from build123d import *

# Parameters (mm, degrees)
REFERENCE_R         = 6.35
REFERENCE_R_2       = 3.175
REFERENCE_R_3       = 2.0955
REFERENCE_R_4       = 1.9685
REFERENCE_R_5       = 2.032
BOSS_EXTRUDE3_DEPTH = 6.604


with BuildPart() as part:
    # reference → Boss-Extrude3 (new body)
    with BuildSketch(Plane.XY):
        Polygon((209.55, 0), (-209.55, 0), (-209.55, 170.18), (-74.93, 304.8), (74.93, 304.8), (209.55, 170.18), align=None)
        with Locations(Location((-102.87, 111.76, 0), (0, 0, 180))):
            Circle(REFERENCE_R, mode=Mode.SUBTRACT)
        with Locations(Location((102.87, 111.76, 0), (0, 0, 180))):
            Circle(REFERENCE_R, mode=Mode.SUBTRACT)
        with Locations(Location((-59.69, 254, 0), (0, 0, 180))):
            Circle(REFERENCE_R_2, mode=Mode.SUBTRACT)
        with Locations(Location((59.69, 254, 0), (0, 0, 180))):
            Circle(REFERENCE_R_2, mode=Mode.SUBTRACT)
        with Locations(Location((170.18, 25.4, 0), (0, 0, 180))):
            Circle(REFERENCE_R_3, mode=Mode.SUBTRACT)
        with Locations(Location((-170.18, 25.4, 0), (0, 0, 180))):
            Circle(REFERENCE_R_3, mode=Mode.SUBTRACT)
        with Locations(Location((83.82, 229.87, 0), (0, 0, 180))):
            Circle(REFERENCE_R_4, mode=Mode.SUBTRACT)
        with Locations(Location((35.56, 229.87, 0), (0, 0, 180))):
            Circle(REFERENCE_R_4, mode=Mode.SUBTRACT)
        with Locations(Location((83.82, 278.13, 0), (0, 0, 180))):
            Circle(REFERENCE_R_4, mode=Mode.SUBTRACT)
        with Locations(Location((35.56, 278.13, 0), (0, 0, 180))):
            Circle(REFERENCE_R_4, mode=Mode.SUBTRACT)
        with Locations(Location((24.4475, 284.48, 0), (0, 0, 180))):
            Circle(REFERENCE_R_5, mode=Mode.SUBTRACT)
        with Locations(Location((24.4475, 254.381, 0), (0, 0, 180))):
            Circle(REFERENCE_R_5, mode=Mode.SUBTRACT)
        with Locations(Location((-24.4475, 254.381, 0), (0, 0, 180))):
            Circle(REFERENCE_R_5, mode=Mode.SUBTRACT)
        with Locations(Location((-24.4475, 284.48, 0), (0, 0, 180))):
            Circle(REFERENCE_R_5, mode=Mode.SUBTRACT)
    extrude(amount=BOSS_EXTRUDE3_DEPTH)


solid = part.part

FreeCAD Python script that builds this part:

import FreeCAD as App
import Part
import Sketcher
from FreeCAD import Vector
Q = App.Units.Quantity

doc = App.newDocument("Part")
params = doc.addObject("Spreadsheet::Sheet", "Params")
for row, (alias, value) in enumerate([
    ("sketch1_diameter", "0.5 in"),
    ("sketch1_diameter2", "0.25 in"),
    ("sketch1_diameter3", "0.16 in"),
    ("sketch1_diameter4", "0.165 in"),
    ("sketch1_diameter5", "0.155 in"),
    ("pad1_length", "0.26 in"),
], start=1):
    params.set(f"A{row}", alias)
    params.set(f"B{row}", "=" + value)
    params.setAlias(f"B{row}", alias)

body = doc.addObject("PartDesign::Body", "Body")

sketch1 = body.newObject("Sketcher::SketchObject", "Sketch")
sketch1.AttachmentSupport = (doc.getObject("XY_Plane"), [""])
sketch1.MapMode = "FlatFace"
sketch1.addGeometry([
    Part.LineSegment(Vector(-209.6, 0, 0), Vector(209.6, 0, 0)),
    Part.LineSegment(Vector(209.6, 0, 0), Vector(209.6, 170.2, 0)),
    Part.LineSegment(Vector(209.6, 170.2, 0), Vector(74.9, 304.8, 0)),
    Part.LineSegment(Vector(74.9, 304.8, 0), Vector(-74.9, 304.8, 0)),
    Part.LineSegment(Vector(-74.9, 304.8, 0), Vector(-209.6, 170.2, 0)),
    Part.LineSegment(Vector(-209.6, 170.2, 0), Vector(-209.6, 0, 0)),
    Part.Circle(Vector(170.2, 25.4, 0), Vector(0, 0, 1), 2.1),
    Part.Circle(Vector(102.9, 111.8, 0), Vector(0, 0, 1), 6.3),
    Part.Circle(Vector(-170.2, 25.4, 0), Vector(0, 0, 1), 2.1),
    Part.Circle(Vector(-102.9, 111.8, 0), Vector(0, 0, 1), 6.3),
    Part.Circle(Vector(83.8, 229.9, 0), Vector(0, 0, 1), 2),
    Part.Circle(Vector(35.6, 229.9, 0), Vector(0, 0, 1), 2),
    Part.Circle(Vector(59.7, 254, 0), Vector(0, 0, 1), 3.2),
    Part.Circle(Vector(83.8, 278.1, 0), Vector(0, 0, 1), 2),
    Part.Circle(Vector(24.4, 254.4, 0), Vector(0, 0, 1), 2),
    Part.Circle(Vector(35.6, 278.1, 0), Vector(0, 0, 1), 2),
    Part.Circle(Vector(24.4, 284.5, 0), Vector(0, 0, 1), 2),
    Part.Circle(Vector(-24.4, 254.4, 0), Vector(0, 0, 1), 2),
    Part.Circle(Vector(-24.4, 284.5, 0), Vector(0, 0, 1), 2),
    Part.Circle(Vector(-59.7, 254, 0), Vector(0, 0, 1), 3.2),
], False)
sketch1.addConstraint([
    Sketcher.Constraint("Coincident", 0, 2, 1, 1),
    Sketcher.Constraint("Coincident", 1, 2, 2, 1),
    Sketcher.Constraint("Coincident", 2, 2, 3, 1),
    Sketcher.Constraint("Coincident", 3, 2, 4, 1),
    Sketcher.Constraint("Coincident", 4, 2, 5, 1),
    Sketcher.Constraint("Coincident", 5, 2, 0, 1),
    Sketcher.Constraint("Horizontal", 0),
    Sketcher.Constraint("Vertical", 1),
    Sketcher.Constraint("Horizontal", 3),
    Sketcher.Constraint("Vertical", 5),
    Sketcher.Constraint("Equal", 6, 8),
    Sketcher.Constraint("Equal", 7, 9),
    Sketcher.Constraint("Equal", 10, 11),
    Sketcher.Constraint("Equal", 11, 13),
    Sketcher.Constraint("Equal", 13, 15),
    Sketcher.Constraint("Equal", 14, 16),
    Sketcher.Constraint("Equal", 16, 17),
    Sketcher.Constraint("Equal", 17, 18),
    Sketcher.Constraint("Equal", 12, 19),
    Sketcher.Constraint("Symmetric", 0, 2, 5, 2, -1, 1),
    Sketcher.Constraint("Symmetric", 6, 3, 8, 3, -2),
    Sketcher.Constraint("Symmetric", 7, 3, 9, 3, -2),
    Sketcher.Constraint("Symmetric", 14, 3, 17, 3, -2),
    Sketcher.Constraint("Symmetric", 16, 3, 18, 3, -2),
    Sketcher.Constraint("Symmetric", 12, 3, 19, 3, -2),
    Sketcher.Constraint("Perpendicular", 2, 4),
    Sketcher.Constraint("Horizontal", 10, 3, 11, 3),
    Sketcher.Constraint("Horizontal", 13, 3, 15, 3),
    Sketcher.Constraint("Horizontal", 1, 2, 4, 2),
    Sketcher.Constraint("Vertical", 10, 3, 13, 3),
    Sketcher.Constraint("Vertical", 11, 3, 15, 3),
    Sketcher.Constraint("Vertical", 14, 3, 16, 3),
    Sketcher.Constraint("Equal", 2, 4),
    Sketcher.Constraint("Diameter", 7, Q("0.5 in")),
    Sketcher.Constraint("Diameter", 12, Q("0.25 in")),
    Sketcher.Constraint("Diameter", 14, Q("0.16 in")),
    Sketcher.Constraint("Diameter", 6, Q("0.165 in")),
    Sketcher.Constraint("Diameter", 10, Q("0.155 in")),
    Sketcher.Constraint("DistanceX", 0, 1, 0, 2, Q("16.5 in")),
    Sketcher.Constraint("DistanceX", 3, 2, 3, 1, Q("5.9 in")),
    Sketcher.Constraint("DistanceY", 1, 1, 1, 2, Q("6.7 in")),
    Sketcher.Constraint("DistanceY", -1, 1, 6, 3, Q("1 in")),
    Sketcher.Constraint("DistanceY", -1, 1, 12, 3, Q("10 in")),
    Sketcher.Constraint("DistanceX", 8, 3, 10, 3, Q("10 in")),
    Sketcher.Constraint("DistanceX", -1, 1, 6, 3, Q("6.7 in")),
    Sketcher.Constraint("DistanceY", -1, 1, 7, 3, Q("4.4 in")),
    Sketcher.Constraint("DistanceX", -1, 1, 11, 3, Q("1.4 in")),
    Sketcher.Constraint("DistanceY", -1, 1, 16, 3, Q("11.2 in")),
    Sketcher.Constraint("DistanceX", 9, 3, 7, 3, Q("8.1 in")),
    Sketcher.Constraint("DistanceX", 12, 3, 7, 3, Q("1.7 in")),
    Sketcher.Constraint("DistanceY", 10, 3, 13, 3, Q("1.9 in")),
    Sketcher.Constraint("DistanceY", -1, 1, 10, 3, Q("9.05 in")),
    Sketcher.Constraint("DistanceY", -1, 1, 14, 3, Q("10.015 in")),
    Sketcher.Constraint("DistanceX", 14, 3, 11, 3, Q("0.4375 in")),
])
sketch1.setExpression("Constraints[33]", "Params.sketch1_diameter")
sketch1.setExpression("Constraints[34]", "Params.sketch1_diameter2")
sketch1.setExpression("Constraints[35]", "Params.sketch1_diameter3")
sketch1.setExpression("Constraints[36]", "Params.sketch1_diameter4")
sketch1.setExpression("Constraints[37]", "Params.sketch1_diameter5")
pad1 = body.newObject("PartDesign::Pad", "Pad")
pad1.Profile = sketch1
pad1.setExpression("Length", "Params.pad1_length")

doc.recompute()
